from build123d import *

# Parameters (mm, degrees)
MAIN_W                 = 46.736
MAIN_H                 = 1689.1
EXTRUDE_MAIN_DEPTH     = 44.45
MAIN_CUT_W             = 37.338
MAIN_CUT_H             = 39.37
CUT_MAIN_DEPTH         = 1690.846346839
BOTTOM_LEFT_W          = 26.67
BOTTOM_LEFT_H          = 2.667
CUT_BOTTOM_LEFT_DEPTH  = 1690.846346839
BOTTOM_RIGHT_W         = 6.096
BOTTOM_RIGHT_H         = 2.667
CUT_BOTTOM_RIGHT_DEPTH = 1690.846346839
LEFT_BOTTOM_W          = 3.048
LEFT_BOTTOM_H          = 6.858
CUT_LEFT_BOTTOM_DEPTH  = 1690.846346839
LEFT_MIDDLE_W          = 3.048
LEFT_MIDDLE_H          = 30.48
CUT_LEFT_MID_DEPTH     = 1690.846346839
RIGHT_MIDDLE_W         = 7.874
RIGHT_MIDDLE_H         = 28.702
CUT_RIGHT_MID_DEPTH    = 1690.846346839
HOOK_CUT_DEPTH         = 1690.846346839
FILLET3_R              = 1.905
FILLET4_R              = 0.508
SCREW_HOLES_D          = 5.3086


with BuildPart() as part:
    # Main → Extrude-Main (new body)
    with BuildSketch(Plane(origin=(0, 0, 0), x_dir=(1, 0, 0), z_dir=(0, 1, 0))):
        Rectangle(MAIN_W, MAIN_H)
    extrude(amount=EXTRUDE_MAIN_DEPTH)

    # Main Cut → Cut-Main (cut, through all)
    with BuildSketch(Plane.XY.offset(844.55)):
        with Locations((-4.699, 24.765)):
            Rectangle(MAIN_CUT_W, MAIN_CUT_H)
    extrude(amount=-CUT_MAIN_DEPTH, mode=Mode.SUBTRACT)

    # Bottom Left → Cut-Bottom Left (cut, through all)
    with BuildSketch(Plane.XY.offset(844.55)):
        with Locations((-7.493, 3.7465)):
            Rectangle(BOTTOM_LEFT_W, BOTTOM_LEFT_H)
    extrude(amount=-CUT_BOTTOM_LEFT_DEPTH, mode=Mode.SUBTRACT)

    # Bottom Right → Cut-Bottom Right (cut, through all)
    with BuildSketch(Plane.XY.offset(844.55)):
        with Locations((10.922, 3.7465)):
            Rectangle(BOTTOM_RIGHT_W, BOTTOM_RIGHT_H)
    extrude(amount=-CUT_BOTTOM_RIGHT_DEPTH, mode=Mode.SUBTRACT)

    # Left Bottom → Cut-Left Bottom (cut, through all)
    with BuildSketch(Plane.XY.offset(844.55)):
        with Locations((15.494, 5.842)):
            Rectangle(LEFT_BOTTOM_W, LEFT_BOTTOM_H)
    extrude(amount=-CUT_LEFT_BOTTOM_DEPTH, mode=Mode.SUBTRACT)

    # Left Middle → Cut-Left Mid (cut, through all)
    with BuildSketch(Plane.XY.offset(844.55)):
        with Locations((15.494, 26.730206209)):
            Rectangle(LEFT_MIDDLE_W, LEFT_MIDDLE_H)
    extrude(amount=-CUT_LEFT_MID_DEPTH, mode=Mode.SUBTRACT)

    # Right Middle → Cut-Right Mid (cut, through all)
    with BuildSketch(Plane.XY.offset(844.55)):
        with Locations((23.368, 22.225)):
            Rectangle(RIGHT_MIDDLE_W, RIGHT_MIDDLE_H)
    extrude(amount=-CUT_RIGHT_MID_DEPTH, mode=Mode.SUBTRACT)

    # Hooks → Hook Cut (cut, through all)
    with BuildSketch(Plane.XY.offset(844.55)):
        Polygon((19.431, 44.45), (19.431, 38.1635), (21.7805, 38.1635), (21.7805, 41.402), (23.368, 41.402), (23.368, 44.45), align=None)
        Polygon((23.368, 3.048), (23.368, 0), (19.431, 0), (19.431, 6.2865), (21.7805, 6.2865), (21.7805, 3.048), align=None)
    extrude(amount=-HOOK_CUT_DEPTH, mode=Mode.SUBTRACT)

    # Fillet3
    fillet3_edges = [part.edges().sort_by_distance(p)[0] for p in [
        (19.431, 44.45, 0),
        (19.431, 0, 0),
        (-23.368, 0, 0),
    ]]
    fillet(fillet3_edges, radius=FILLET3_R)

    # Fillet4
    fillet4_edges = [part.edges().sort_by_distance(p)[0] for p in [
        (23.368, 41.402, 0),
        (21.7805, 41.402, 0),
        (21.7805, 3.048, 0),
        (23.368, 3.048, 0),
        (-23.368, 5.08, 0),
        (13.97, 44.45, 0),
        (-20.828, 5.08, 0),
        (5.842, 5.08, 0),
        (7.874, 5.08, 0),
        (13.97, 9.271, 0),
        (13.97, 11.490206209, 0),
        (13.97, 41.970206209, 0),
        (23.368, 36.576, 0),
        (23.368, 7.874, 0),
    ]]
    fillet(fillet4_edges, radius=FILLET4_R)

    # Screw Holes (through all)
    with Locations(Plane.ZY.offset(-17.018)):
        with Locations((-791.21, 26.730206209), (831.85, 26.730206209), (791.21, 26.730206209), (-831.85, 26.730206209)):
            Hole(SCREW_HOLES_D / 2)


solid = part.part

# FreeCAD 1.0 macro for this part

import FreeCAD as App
import Part
import Sketcher
from FreeCAD import Vector
Q = App.Units.Quantity


def edges_at(feature, points):
    """Names of the edges that pass closest to the given points."""
    edges = feature.Shape.Edges
    near = lambda p: min(range(len(edges)), key=lambda i: edges[i].distToShape(Part.Vertex(*p))[0])
    return sorted({f"Edge{near(p) + 1}" for p in points})


def add_polygon(sketch, points):
    """Adds a closed chain of lines whose ends are joined by coincident constraints."""
    first, n = sketch.GeometryCount, len(points)
    for a, b in zip(points, points[1:] + points[:1]):
        sketch.addGeometry(Part.LineSegment(App.Vector(*a, 0), App.Vector(*b, 0)), False)
    for i in range(n):
        sketch.addConstraint(Sketcher.Constraint("Coincident", first + i, 2, first + (i + 1) % n, 1))

doc = App.newDocument("Part")
params = doc.addObject("Spreadsheet::Sheet", "Params")
for row, (alias, value) in enumerate([
    ("sketch1_height", "66.5 in"),
    ("sketch1_width", "1.84 in"),
    ("pad1_length", "1.75 in"),
    ("sketch2_width", "1.47 in"),
    ("sketch2_height", "1.55 in"),
    ("sketch3_width", "1.05 in"),
    ("sketch3_height", "0.105 in"),
    ("sketch4_width", "0.24 in"),
    ("sketch4_height", "0.105 in"),
    ("sketch5_width", "0.12 in"),
    ("sketch5_height", "0.27 in"),
    ("sketch6_height", "1.2 in"),
    ("sketch6_width", "0.12 in"),
    ("sketch7_width", "0.31 in"),
    ("sketch7_height", "1.13 in"),
    ("sketch8_height", "0.12 in"),
    ("sketch8_width", "0.0625 in"),
    ("sketch8_width2", "0.155 in"),
    ("fillet_radius", "0.075 in"),
    ("fillet2_radius", "0.02 in"),
    ("sketch9_diameter", "0.209 in"),
    ("hole_diameter", "0.209 in"),
], start=1):
    params.set(f"A{row}", alias)
    params.set(f"B{row}", "=" + value)
    params.setAlias(f"B{row}", alias)

body = doc.addObject("PartDesign::Body", "Body")

sketch1 = doc.addObject("Sketcher::SketchObject", "Sketch")
body.addObject(sketch1)
sketch1.AttachmentSupport = (doc.XZ_Plane, [""])
sketch1.MapMode = "FlatFace"
add_polygon(sketch1, [(-23, -845), (-23, 845), (23, 845), (23, -845)])
sketch1.addConstraint(Sketcher.Constraint("Vertical", 0))
sketch1.addConstraint(Sketcher.Constraint("Horizontal", 1))
sketch1.addConstraint(Sketcher.Constraint("Vertical", 2))
sketch1.addConstraint(Sketcher.Constraint("Horizontal", 3))
sketch1.addConstraint(Sketcher.Constraint("Symmetric", 0, 2, 2, 2, -1, 1))
sketch1.addConstraint(Sketcher.Constraint("DistanceY", 0, 1, 0, 2, Q("66.5 in")))
sketch1.addConstraint(Sketcher.Constraint("DistanceX", 1, 1, 1, 2, Q("1.84 in")))
sketch1.setExpression("Constraints[9]", "Params.sketch1_height")
sketch1.setExpression("Constraints[10]", "Params.sketch1_width")
pad1 = doc.addObject("PartDesign::Pad", "Pad")
body.addObject(pad1)
pad1.Profile = sketch1
pad1.setExpression("Length", "Params.pad1_length")
pad1.Reversed = True

sketch2 = doc.addObject("Sketcher::SketchObject", "Sketch001")
body.addObject(sketch2)
sketch2.AttachmentSupport = (doc.XY_Plane, [""])
sketch2.MapMode = "FlatFace"
sketch2.AttachmentOffset = App.Placement(Vector(0, 0, 33.25 * 25.4), App.Rotation())
add_polygon(sketch2, [(-23, 44), (-23, 5), (14, 5), (14, 44)])
sketch2.addConstraint(Sketcher.Constraint("Vertical", 0))
sketch2.addConstraint(Sketcher.Constraint("Horizontal", 1))
sketch2.addConstraint(Sketcher.Constraint("Vertical", 2))
sketch2.addConstraint(Sketcher.Constraint("Horizontal", 3))
sketch2.addConstraint(Sketcher.Constraint("DistanceX", 1, 1, 1, 2, Q("1.47 in")))
sketch2.addConstraint(Sketcher.Constraint("DistanceY", 0, 2, 0, 1, Q("1.55 in")))
sketch2.addConstraint(Sketcher.Constraint("DistanceY", -1, 1, 0, 2, Q("0.2 in")))
sketch2.addConstraint(Sketcher.Constraint("DistanceX", 0, 2, -1, 1, Q("0.92 in")))
sketch2.setExpression("Constraints[8]", "Params.sketch2_width")
sketch2.setExpression("Constraints[9]", "Params.sketch2_height")
pocket1 = doc.addObject("PartDesign::Pocket", "Pocket")
body.addObject(pocket1)
pocket1.Profile = sketch2
pocket1.Type = "ThroughAll"

sketch3 = doc.addObject("Sketcher::SketchObject", "Sketch002")
body.addObject(sketch3)
sketch3.AttachmentSupport = (doc.XY_Plane, [""])
sketch3.MapMode = "FlatFace"
sketch3.AttachmentOffset = App.Placement(Vector(0, 0, 33.25 * 25.4), App.Rotation())
add_polygon(sketch3, [(-20.8, 5.1), (-20.8, 2.4), (5.8, 2.4), (5.8, 5.1)])
sketch3.addConstraint(Sketcher.Constraint("Vertical", 0))
sketch3.addConstraint(Sketcher.Constraint("Horizontal", 1))
sketch3.addConstraint(Sketcher.Constraint("Vertical", 2))
sketch3.addConstraint(Sketcher.Constraint("Horizontal", 3))
sketch3.addConstraint(Sketcher.Constraint("DistanceX", 1, 1, 1, 2, Q("1.05 in")))
sketch3.addConstraint(Sketcher.Constraint("DistanceY", -1, 1, 2, 2, Q("0.2 in")))
sketch3.addConstraint(Sketcher.Constraint("DistanceY", 0, 2, 0, 1, Q("0.105 in")))
sketch3.addConstraint(Sketcher.Constraint("DistanceX", 0, 2, -1, 1, Q("0.82 in")))
sketch3.setExpression("Constraints[8]", "Params.sketch3_width")
sketch3.setExpression("Constraints[10]", "Params.sketch3_height")
pocket2 = doc.addObject("PartDesign::Pocket", "Pocket001")
body.addObject(pocket2)
pocket2.Profile = sketch3
pocket2.Type = "ThroughAll"

sketch4 = doc.addObject("Sketcher::SketchObject", "Sketch003")
body.addObject(sketch4)
sketch4.AttachmentSupport = (doc.XY_Plane, [""])
sketch4.MapMode = "FlatFace"
sketch4.AttachmentOffset = App.Placement(Vector(0, 0, 33.25 * 25.4), App.Rotation())
add_polygon(sketch4, [(7.9, 5.1), (7.9, 2.4), (14, 2.4), (14, 5.1)])
sketch4.addConstraint(Sketcher.Constraint("Vertical", 0))
sketch4.addConstraint(Sketcher.Constraint("Horizontal", 1))
sketch4.addConstraint(Sketcher.Constraint("Vertical", 2))
sketch4.addConstraint(Sketcher.Constraint("Horizontal", 3))
sketch4.addConstraint(Sketcher.Constraint("DistanceX", 1, 1, 1, 2, Q("0.24 in")))
sketch4.addConstraint(Sketcher.Constraint("DistanceY", -1, 1, 2, 2, Q("0.2 in")))
sketch4.addConstraint(Sketcher.Constraint("DistanceY", 0, 2, 0, 1, Q("0.105 in")))
sketch4.addConstraint(Sketcher.Constraint("DistanceX", -1, 1, 0, 2, Q("0.31 in")))
sketch4.setExpression("Constraints[8]", "Params.sketch4_width")
sketch4.setExpression("Constraints[10]", "Params.sketch4_height")
pocket3 = doc.addObject("PartDesign::Pocket", "Pocket002")
body.addObject(pocket3)
pocket3.Profile = sketch4
pocket3.Type = "ThroughAll"

sketch5 = doc.addObject("Sketcher::SketchObject", "Sketch004")
body.addObject(sketch5)
sketch5.AttachmentSupport = (doc.XY_Plane, [""])
sketch5.MapMode = "FlatFace"
sketch5.AttachmentOffset = App.Placement(Vector(0, 0, 33.25 * 25.4), App.Rotation())
add_polygon(sketch5, [(14, 9.3), (14, 2.4), (17, 2.4), (17, 9.3)])
sketch5.addConstraint(Sketcher.Constraint("Vertical", 0))
sketch5.addConstraint(Sketcher.Constraint("Horizontal", 1))
sketch5.addConstraint(Sketcher.Constraint("Vertical", 2))
sketch5.addConstraint(Sketcher.Constraint("Horizontal", 3))
sketch5.addConstraint(Sketcher.Constraint("DistanceX", 1, 1, 1, 2, Q("0.12 in")))
sketch5.addConstraint(Sketcher.Constraint("DistanceY", 0, 2, 0, 1, Q("0.27 in")))
sketch5.addConstraint(Sketcher.Constraint("DistanceX", -1, 1, 0, 2, Q("0.55 in")))
sketch5.addConstraint(Sketcher.Constraint("DistanceY", -1, 1, 0, 2, Q("0.095 in")))
sketch5.setExpression("Constraints[8]", "Params.sketch5_width")
sketch5.setExpression("Constraints[9]", "Params.sketch5_height")
pocket4 = doc.addObject("PartDesign::Pocket", "Pocket003")
body.addObject(pocket4)
pocket4.Profile = sketch5
pocket4.Type = "ThroughAll"

sketch6 = doc.addObject("Sketcher::SketchObject", "Sketch005")
body.addObject(sketch6)
sketch6.AttachmentSupport = (doc.XY_Plane, [""])
sketch6.MapMode = "FlatFace"
sketch6.AttachmentOffset = App.Placement(Vector(0, 0, 33.25 * 25.4), App.Rotation())
add_polygon(sketch6, [(14, 42), (14, 11.5), (17, 11.5), (17, 42)])
sketch6.addConstraint(Sketcher.Constraint("Vertical", 0))
sketch6.addConstraint(Sketcher.Constraint("Horizontal", 1))
sketch6.addConstraint(Sketcher.Constraint("Vertical", 2))
sketch6.addConstraint(Sketcher.Constraint("Horizontal", 3))
sketch6.addConstraint(Sketcher.Constraint("DistanceY", 0, 2, 0, 1, Q("1.2 in")))
sketch6.addConstraint(Sketcher.Constraint("DistanceX", 1, 1, 1, 2, Q("0.12 in")))
sketch6.addConstraint(Sketcher.Constraint("DistanceX", -1, 1, 0, 2, Q("0.55 in")))
sketch6.addConstraint(Sketcher.Constraint("DistanceY", -1, 1, 0, 2, Q("11.490206 mm")))
sketch6.setExpression("Constraints[8]", "Params.sketch6_height")
sketch6.setExpression("Constraints[9]", "Params.sketch6_width")
pocket5 = doc.addObject("PartDesign::Pocket", "Pocket004")
body.addObject(pocket5)
pocket5.Profile = sketch6
pocket5.Type = "ThroughAll"

sketch7 = doc.addObject("Sketcher::SketchObject", "Sketch006")
body.addObject(sketch7)
sketch7.AttachmentSupport = (doc.XY_Plane, [""])
sketch7.MapMode = "FlatFace"
sketch7.AttachmentOffset = App.Placement(Vector(0, 0, 33.25 * 25.4), App.Rotation())
add_polygon(sketch7, [(19, 37), (19, 8), (27, 8), (27, 37)])
sketch7.addConstraint(Sketcher.Constraint("Vertical", 0))
sketch7.addConstraint(Sketcher.Constraint("Horizontal", 1))
sketch7.addConstraint(Sketcher.Constraint("Vertical", 2))
sketch7.addConstraint(Sketcher.Constraint("Horizontal", 3))
sketch7.addConstraint(Sketcher.Constraint("DistanceX", 1, 1, 1, 2, Q("0.31 in")))
sketch7.addConstraint(Sketcher.Constraint("DistanceY", 0, 2, 0, 1, Q("1.13 in")))
sketch7.addConstraint(Sketcher.Constraint("DistanceY", -1, 1, 0, 2, Q("0.31 in")))
sketch7.addConstraint(Sketcher.Constraint("DistanceX", -1, 1, 0, 2, Q("0.765 in")))
sketch7.setExpression("Constraints[8]", "Params.sketch7_width")
sketch7.setExpression("Constraints[9]", "Params.sketch7_height")
pocket6 = doc.addObject("PartDesign::Pocket", "Pocket005")
body.addObject(pocket6)
pocket6.Profile = sketch7
pocket6.Type = "ThroughAll"

sketch8 = doc.addObject("Sketcher::SketchObject", "Sketch007")
body.addObject(sketch8)
sketch8.AttachmentSupport = (doc.XY_Plane, [""])
sketch8.MapMode = "FlatFace"
sketch8.AttachmentOffset = App.Placement(Vector(0, 0, 33.25 * 25.4), App.Rotation())
add_polygon(sketch8, [(19.4, 44.5), (19.4, 38.2), (21.8, 38.2), (21.8, 41.4), (23.4, 41.4), (23.4, 44.5)])
add_polygon(sketch8, [(23.4, 0), (23.4, 3), (21.8, 3), (21.8, 6.3), (19.4, 6.3), (19.4, 0)])
sketch8.addConstraint(Sketcher.Constraint("Vertical", 0))
sketch8.addConstraint(Sketcher.Constraint("Horizontal", 1))
sketch8.addConstraint(Sketcher.Constraint("Vertical", 2))
sketch8.addConstraint(Sketcher.Constraint("Horizontal", 3))
sketch8.addConstraint(Sketcher.Constraint("Vertical", 4))
sketch8.addConstraint(Sketcher.Constraint("Horizontal", 5))
sketch8.addConstraint(Sketcher.Constraint("Vertical", 6))
sketch8.addConstraint(Sketcher.Constraint("Horizontal", 7))
sketch8.addConstraint(Sketcher.Constraint("Vertical", 8))
sketch8.addConstraint(Sketcher.Constraint("Horizontal", 9))
sketch8.addConstraint(Sketcher.Constraint("Vertical", 10))
sketch8.addConstraint(Sketcher.Constraint("Horizontal", 11))
sketch8.addConstraint(Sketcher.Constraint("PointOnObject", 10, 2, -1))
sketch8.addConstraint(Sketcher.Constraint("Vertical", 4, 2, 6, 2))
sketch8.addConstraint(Sketcher.Constraint("Vertical", 2, 2, 7, 2))
sketch8.addConstraint(Sketcher.Constraint("Vertical", 5, 2, 9, 2))
sketch8.addConstraint(Sketcher.Constraint("Equal", 4, 6))
sketch8.addConstraint(Sketcher.Constraint("Equal", 2, 8))
sketch8.addConstraint(Sketcher.Constraint("DistanceY", 4, 1, 4, 2, Q("0.12 in")))
sketch8.addConstraint(Sketcher.Constraint("DistanceX", 3, 1, 3, 2, Q("0.0625 in")))
sketch8.addConstraint(Sketcher.Constraint("DistanceX", 5, 2, 5, 1, Q("0.155 in")))
sketch8.addConstraint(Sketcher.Constraint("DistanceY", -1, 1, 2, 2, Q("1.63 in")))
sketch8.addConstraint(Sketcher.Constraint("DistanceX", -1, 1, 3, 2, Q("0.92 in")))
sketch8.addConstraint(Sketcher.Constraint("DistanceY", 0, 2, 0, 1, Q("0.2475 in")))
sketch8.setExpression("Constraints[30]", "Params.sketch8_height")
sketch8.setExpression("Constraints[31]", "Params.sketch8_width")
sketch8.setExpression("Constraints[32]", "Params.sketch8_width2")
pocket7 = doc.addObject("PartDesign::Pocket", "Pocket006")
body.addObject(pocket7)
pocket7.Profile = sketch8
pocket7.Type = "ThroughAll"
doc.recompute()

fillet = doc.addObject("PartDesign::Fillet", "Fillet")
body.addObject(fillet)
fillet.Base = (pocket7, edges_at(pocket7, [(19.431, 44.45, 0), (19.431, 0, 0), (-23.368, 0, 0)]))
fillet.setExpression("Radius", "Params.fillet_radius")
doc.recompute()

fillet2 = doc.addObject("PartDesign::Fillet", "Fillet001")
body.addObject(fillet2)
fillet2.Base = (fillet, edges_at(fillet, [
    (23.368, 41.402, 0),
    (21.78, 41.402, 0),
    (21.78, 3.048, 0),
    (23.368, 3.048, 0),
    (-23.368, 5.08, 0),
    (13.97, 44.45, 0),
    (-20.828, 5.08, 0),
    (5.842, 5.08, 0),
    (7.874, 5.08, 0),
    (13.97, 9.271, 0),
    (13.97, 11.49, 0),
    (13.97, 41.97, 0),
    (23.368, 36.576, 0),
    (23.368, 7.874, 0),
]))
fillet2.setExpression("Radius", "Params.fillet2_radius")

sketch9 = doc.addObject("Sketcher::SketchObject", "Sketch008")
body.addObject(sketch9)
sketch9.AttachmentSupport = (doc.YZ_Plane, [""])
sketch9.MapMode = "FlatFace"
sketch9.AttachmentOffset = App.Placement(Vector(0, 0, 0.67 * 25.4), App.Rotation())
sketch9.addGeometry(Part.Circle(Vector(26.7, -791.2, 0), Vector(0, 0, 1), 2.7), False)
sketch9.addGeometry(Part.Circle(Vector(26.7, 831.9, 0), Vector(0, 0, 1), 2.7), False)
sketch9.addGeometry(Part.Circle(Vector(26.7, 791.2, 0), Vector(0, 0, 1), 2.7), False)
sketch9.addGeometry(Part.Circle(Vector(26.7, -831.9, 0), Vector(0, 0, 1), 2.7), False)
sketch9.addConstraint(Sketcher.Constraint("Equal", 0, 1))
sketch9.addConstraint(Sketcher.Constraint("Equal", 1, 2))
sketch9.addConstraint(Sketcher.Constraint("Equal", 2, 3))
sketch9.addConstraint(Sketcher.Constraint("Symmetric", 0, 3, 2, 3, -1))
sketch9.addConstraint(Sketcher.Constraint("Symmetric", 1, 3, 3, 3, -1))
sketch9.addConstraint(Sketcher.Constraint("Vertical", 0, 3, 1, 3))
sketch9.addConstraint(Sketcher.Constraint("Diameter", 0, Q("0.209 in")))
sketch9.addConstraint(Sketcher.Constraint("DistanceY", 0, 3, 1, 3, Q("63.9 in")))
sketch9.addConstraint(Sketcher.Constraint("DistanceY", 2, 3, 1, 3, Q("1.6 in")))
sketch9.addConstraint(Sketcher.Constraint("DistanceX", -1, 1, 0, 3, Q("26.730206 mm")))
sketch9.setExpression("Constraints[6]", "Params.sketch9_diameter")
doc.recompute()
hole = doc.addObject("PartDesign::Hole", "Hole")
body.addObject(hole)
hole.Profile = sketch9
hole.ThreadType = "None"
hole.setExpression("Diameter", "Params.hole_diameter")
hole.DepthType = "ThroughAll"
hole.Reversed = True

doc.recompute()
